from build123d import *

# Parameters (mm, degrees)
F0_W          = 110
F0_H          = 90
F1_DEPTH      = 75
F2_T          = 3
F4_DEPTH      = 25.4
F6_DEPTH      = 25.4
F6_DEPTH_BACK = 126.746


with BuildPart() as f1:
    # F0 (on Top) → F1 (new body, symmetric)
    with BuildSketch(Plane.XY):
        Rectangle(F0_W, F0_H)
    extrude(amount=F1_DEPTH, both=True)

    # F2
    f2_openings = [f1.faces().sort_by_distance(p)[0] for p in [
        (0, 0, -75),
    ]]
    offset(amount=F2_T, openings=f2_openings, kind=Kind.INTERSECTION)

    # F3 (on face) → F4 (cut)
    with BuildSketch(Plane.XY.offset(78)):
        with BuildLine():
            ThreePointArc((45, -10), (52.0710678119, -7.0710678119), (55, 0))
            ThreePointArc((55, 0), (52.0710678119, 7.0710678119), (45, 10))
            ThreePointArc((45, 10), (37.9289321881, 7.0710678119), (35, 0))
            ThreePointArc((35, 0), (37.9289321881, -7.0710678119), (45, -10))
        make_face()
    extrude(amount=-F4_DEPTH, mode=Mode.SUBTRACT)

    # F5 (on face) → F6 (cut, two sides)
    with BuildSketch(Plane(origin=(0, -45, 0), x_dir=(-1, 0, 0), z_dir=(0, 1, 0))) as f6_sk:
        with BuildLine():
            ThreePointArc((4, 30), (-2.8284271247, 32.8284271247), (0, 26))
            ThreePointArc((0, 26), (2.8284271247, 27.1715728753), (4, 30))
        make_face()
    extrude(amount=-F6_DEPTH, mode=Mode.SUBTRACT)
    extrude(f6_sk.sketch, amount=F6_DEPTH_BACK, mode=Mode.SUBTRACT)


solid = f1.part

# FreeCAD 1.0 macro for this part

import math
import FreeCAD as App
import Part
import Sketcher
from FreeCAD import Vector


def faces_at(feature, points):
    """Names of the faces that lie closest to the given points."""
    faces = feature.Shape.Faces
    near = lambda p: min(range(len(faces)), key=lambda i: faces[i].distToShape(Part.Vertex(*p))[0])
    return sorted({f"Face{near(p) + 1}" for p in points})

doc = App.newDocument("Part")
body = doc.addObject("PartDesign::Body", "Body")

# Sketch on XY plane
sketch1 = body.newObject("Sketcher::SketchObject", "Sketch")
sketch1.AttachmentSupport = (doc.getObject("XY_Plane"), [""])
sketch1.MapMode = "FlatFace"
sketch1.addGeometry(Part.LineSegment(Vector(-55, 45, 0), Vector(-55, -45, 0)), False)
sketch1.addGeometry(Part.LineSegment(Vector(-55, -45, 0), Vector(55, -45, 0)), False)
sketch1.addGeometry(Part.LineSegment(Vector(55, -45, 0), Vector(55, 45, 0)), False)
sketch1.addGeometry(Part.LineSegment(Vector(55, 45, 0), Vector(-55, 45, 0)), False)
sketch1.addConstraint(Sketcher.Constraint("Coincident", 0, 2, 1, 1))
sketch1.addConstraint(Sketcher.Constraint("Coincident", 1, 2, 2, 1))
sketch1.addConstraint(Sketcher.Constraint("Coincident", 2, 2, 3, 1))
sketch1.addConstraint(Sketcher.Constraint("Coincident", 3, 2, 0, 1))
sketch1.addConstraint(Sketcher.Constraint("Vertical", 0))
sketch1.addConstraint(Sketcher.Constraint("Horizontal", 1))
sketch1.addConstraint(Sketcher.Constraint("Vertical", 2))
sketch1.addConstraint(Sketcher.Constraint("Horizontal", 3))
sketch1.addConstraint(Sketcher.Constraint("Symmetric", 0, 2, 2, 2, -1, 1))
sketch1.addConstraint(Sketcher.Constraint("DistanceX", 1, 1, 1, 2, 110.0))
sketch1.addConstraint(Sketcher.Constraint("DistanceY", 0, 2, 0, 1, 90.0))
pad1 = body.newObject("PartDesign::Pad", "Pad")
pad1.Profile = sketch1
pad1.Length = 150
pad1.Midplane = True
doc.recompute()

thickness = body.newObject("PartDesign::Thickness", "Thickness")
thickness.Base = (pad1, faces_at(pad1, [(0, 0, -75)]))
thickness.Value = 3
thickness.Reversed = False
thickness.Join = "Intersection"

# Sketch on XY plane
sketch2 = body.newObject("Sketcher::SketchObject", "Sketch001")
sketch2.AttachmentSupport = (doc.getObject("XY_Plane"), [""])
sketch2.MapMode = "FlatFace"
sketch2.AttachmentOffset = App.Placement(Vector(0, 0, 78), App.Rotation())
sketch2.addGeometry(Part.ArcOfCircle(Part.Circle(Vector(45, 0, 0), Vector(0, 0, 1), 10), math.radians(-90), math.radians(0)), False)
sketch2.addGeometry(Part.ArcOfCircle(Part.Circle(Vector(45, 0, 0), Vector(0, 0, 1), 10), math.radians(0), math.radians(90)), False)
sketch2.addGeometry(Part.ArcOfCircle(Part.Circle(Vector(45, 0, 0), Vector(0, 0, 1), 10), math.radians(90), math.radians(180)), False)
sketch2.addGeometry(Part.ArcOfCircle(Part.Circle(Vector(45, 0, 0), Vector(0, 0, 1), 10), math.radians(180), math.radians(270)), False)
sketch2.addConstraint(Sketcher.Constraint("Tangent", 0, 2, 1, 1))
sketch2.addConstraint(Sketcher.Constraint("Tangent", 1, 2, 2, 1))
sketch2.addConstraint(Sketcher.Constraint("Tangent", 2, 2, 3, 1))
sketch2.addConstraint(Sketcher.Constraint("Tangent", 3, 2, 0, 1))
sketch2.addConstraint(Sketcher.Constraint("Equal", 0, 1))
sketch2.addConstraint(Sketcher.Constraint("Symmetric", 1, 2, 3, 2, -1))
sketch2.addConstraint(Sketcher.Constraint("PointOnObject", 0, 2, -1))
sketch2.addConstraint(Sketcher.Constraint("PointOnObject", 2, 2, -1))
sketch2.addConstraint(Sketcher.Constraint("Vertical", 3, 3, 1, 2))
sketch2.addConstraint(Sketcher.Constraint("Radius", 0, 10.0))
sketch2.addConstraint(Sketcher.Constraint("DistanceX", -1, 1, 0, 3, 45.0))
pocket1 = body.newObject("PartDesign::Pocket", "Pocket")
pocket1.Profile = sketch2
pocket1.Length = 25.4

# Sketch on XZ plane
sketch3 = body.newObject("Sketcher::SketchObject", "Sketch002")
sketch3.AttachmentSupport = (doc.getObject("XZ_Plane"), [""])
sketch3.MapMode = "FlatFace"
sketch3.AttachmentOffset = App.Placement(Vector(0, 0, 45), App.Rotation())
sketch3.addGeometry(Part.ArcOfCircle(Part.Circle(Vector(0, 30, 0), Vector(0, 0, 1), 4), math.radians(-90), math.radians(180)), False)
sketch3.addGeometry(Part.ArcOfCircle(Part.Circle(Vector(0, 30, 0), Vector(0, 0, 1), 4), math.radians(180), math.radians(270)), False)
sketch3.addConstraint(Sketcher.Constraint("Tangent", 0, 1, 1, 2))
sketch3.addConstraint(Sketcher.Constraint("Coincident", 1, 1, 0, 2))
sketch3.addConstraint(Sketcher.Constraint("PointOnObject", 0, 3, -2))
sketch3.addConstraint(Sketcher.Constraint("PointOnObject", 0, 1, -2))
sketch3.addConstraint(Sketcher.Constraint("Horizontal", 0, 3, 1, 1))
sketch3.addConstraint(Sketcher.Constraint("Radius", 0, 4.0))
sketch3.addConstraint(Sketcher.Constraint("DistanceY", -1, 1, 0, 3, 30.0))
pocket2 = body.newObject("PartDesign::Pocket", "Pocket001")
pocket2.Profile = sketch3
pocket2.Type = "ThroughAll"
pocket2.Midplane = True

doc.recompute()
